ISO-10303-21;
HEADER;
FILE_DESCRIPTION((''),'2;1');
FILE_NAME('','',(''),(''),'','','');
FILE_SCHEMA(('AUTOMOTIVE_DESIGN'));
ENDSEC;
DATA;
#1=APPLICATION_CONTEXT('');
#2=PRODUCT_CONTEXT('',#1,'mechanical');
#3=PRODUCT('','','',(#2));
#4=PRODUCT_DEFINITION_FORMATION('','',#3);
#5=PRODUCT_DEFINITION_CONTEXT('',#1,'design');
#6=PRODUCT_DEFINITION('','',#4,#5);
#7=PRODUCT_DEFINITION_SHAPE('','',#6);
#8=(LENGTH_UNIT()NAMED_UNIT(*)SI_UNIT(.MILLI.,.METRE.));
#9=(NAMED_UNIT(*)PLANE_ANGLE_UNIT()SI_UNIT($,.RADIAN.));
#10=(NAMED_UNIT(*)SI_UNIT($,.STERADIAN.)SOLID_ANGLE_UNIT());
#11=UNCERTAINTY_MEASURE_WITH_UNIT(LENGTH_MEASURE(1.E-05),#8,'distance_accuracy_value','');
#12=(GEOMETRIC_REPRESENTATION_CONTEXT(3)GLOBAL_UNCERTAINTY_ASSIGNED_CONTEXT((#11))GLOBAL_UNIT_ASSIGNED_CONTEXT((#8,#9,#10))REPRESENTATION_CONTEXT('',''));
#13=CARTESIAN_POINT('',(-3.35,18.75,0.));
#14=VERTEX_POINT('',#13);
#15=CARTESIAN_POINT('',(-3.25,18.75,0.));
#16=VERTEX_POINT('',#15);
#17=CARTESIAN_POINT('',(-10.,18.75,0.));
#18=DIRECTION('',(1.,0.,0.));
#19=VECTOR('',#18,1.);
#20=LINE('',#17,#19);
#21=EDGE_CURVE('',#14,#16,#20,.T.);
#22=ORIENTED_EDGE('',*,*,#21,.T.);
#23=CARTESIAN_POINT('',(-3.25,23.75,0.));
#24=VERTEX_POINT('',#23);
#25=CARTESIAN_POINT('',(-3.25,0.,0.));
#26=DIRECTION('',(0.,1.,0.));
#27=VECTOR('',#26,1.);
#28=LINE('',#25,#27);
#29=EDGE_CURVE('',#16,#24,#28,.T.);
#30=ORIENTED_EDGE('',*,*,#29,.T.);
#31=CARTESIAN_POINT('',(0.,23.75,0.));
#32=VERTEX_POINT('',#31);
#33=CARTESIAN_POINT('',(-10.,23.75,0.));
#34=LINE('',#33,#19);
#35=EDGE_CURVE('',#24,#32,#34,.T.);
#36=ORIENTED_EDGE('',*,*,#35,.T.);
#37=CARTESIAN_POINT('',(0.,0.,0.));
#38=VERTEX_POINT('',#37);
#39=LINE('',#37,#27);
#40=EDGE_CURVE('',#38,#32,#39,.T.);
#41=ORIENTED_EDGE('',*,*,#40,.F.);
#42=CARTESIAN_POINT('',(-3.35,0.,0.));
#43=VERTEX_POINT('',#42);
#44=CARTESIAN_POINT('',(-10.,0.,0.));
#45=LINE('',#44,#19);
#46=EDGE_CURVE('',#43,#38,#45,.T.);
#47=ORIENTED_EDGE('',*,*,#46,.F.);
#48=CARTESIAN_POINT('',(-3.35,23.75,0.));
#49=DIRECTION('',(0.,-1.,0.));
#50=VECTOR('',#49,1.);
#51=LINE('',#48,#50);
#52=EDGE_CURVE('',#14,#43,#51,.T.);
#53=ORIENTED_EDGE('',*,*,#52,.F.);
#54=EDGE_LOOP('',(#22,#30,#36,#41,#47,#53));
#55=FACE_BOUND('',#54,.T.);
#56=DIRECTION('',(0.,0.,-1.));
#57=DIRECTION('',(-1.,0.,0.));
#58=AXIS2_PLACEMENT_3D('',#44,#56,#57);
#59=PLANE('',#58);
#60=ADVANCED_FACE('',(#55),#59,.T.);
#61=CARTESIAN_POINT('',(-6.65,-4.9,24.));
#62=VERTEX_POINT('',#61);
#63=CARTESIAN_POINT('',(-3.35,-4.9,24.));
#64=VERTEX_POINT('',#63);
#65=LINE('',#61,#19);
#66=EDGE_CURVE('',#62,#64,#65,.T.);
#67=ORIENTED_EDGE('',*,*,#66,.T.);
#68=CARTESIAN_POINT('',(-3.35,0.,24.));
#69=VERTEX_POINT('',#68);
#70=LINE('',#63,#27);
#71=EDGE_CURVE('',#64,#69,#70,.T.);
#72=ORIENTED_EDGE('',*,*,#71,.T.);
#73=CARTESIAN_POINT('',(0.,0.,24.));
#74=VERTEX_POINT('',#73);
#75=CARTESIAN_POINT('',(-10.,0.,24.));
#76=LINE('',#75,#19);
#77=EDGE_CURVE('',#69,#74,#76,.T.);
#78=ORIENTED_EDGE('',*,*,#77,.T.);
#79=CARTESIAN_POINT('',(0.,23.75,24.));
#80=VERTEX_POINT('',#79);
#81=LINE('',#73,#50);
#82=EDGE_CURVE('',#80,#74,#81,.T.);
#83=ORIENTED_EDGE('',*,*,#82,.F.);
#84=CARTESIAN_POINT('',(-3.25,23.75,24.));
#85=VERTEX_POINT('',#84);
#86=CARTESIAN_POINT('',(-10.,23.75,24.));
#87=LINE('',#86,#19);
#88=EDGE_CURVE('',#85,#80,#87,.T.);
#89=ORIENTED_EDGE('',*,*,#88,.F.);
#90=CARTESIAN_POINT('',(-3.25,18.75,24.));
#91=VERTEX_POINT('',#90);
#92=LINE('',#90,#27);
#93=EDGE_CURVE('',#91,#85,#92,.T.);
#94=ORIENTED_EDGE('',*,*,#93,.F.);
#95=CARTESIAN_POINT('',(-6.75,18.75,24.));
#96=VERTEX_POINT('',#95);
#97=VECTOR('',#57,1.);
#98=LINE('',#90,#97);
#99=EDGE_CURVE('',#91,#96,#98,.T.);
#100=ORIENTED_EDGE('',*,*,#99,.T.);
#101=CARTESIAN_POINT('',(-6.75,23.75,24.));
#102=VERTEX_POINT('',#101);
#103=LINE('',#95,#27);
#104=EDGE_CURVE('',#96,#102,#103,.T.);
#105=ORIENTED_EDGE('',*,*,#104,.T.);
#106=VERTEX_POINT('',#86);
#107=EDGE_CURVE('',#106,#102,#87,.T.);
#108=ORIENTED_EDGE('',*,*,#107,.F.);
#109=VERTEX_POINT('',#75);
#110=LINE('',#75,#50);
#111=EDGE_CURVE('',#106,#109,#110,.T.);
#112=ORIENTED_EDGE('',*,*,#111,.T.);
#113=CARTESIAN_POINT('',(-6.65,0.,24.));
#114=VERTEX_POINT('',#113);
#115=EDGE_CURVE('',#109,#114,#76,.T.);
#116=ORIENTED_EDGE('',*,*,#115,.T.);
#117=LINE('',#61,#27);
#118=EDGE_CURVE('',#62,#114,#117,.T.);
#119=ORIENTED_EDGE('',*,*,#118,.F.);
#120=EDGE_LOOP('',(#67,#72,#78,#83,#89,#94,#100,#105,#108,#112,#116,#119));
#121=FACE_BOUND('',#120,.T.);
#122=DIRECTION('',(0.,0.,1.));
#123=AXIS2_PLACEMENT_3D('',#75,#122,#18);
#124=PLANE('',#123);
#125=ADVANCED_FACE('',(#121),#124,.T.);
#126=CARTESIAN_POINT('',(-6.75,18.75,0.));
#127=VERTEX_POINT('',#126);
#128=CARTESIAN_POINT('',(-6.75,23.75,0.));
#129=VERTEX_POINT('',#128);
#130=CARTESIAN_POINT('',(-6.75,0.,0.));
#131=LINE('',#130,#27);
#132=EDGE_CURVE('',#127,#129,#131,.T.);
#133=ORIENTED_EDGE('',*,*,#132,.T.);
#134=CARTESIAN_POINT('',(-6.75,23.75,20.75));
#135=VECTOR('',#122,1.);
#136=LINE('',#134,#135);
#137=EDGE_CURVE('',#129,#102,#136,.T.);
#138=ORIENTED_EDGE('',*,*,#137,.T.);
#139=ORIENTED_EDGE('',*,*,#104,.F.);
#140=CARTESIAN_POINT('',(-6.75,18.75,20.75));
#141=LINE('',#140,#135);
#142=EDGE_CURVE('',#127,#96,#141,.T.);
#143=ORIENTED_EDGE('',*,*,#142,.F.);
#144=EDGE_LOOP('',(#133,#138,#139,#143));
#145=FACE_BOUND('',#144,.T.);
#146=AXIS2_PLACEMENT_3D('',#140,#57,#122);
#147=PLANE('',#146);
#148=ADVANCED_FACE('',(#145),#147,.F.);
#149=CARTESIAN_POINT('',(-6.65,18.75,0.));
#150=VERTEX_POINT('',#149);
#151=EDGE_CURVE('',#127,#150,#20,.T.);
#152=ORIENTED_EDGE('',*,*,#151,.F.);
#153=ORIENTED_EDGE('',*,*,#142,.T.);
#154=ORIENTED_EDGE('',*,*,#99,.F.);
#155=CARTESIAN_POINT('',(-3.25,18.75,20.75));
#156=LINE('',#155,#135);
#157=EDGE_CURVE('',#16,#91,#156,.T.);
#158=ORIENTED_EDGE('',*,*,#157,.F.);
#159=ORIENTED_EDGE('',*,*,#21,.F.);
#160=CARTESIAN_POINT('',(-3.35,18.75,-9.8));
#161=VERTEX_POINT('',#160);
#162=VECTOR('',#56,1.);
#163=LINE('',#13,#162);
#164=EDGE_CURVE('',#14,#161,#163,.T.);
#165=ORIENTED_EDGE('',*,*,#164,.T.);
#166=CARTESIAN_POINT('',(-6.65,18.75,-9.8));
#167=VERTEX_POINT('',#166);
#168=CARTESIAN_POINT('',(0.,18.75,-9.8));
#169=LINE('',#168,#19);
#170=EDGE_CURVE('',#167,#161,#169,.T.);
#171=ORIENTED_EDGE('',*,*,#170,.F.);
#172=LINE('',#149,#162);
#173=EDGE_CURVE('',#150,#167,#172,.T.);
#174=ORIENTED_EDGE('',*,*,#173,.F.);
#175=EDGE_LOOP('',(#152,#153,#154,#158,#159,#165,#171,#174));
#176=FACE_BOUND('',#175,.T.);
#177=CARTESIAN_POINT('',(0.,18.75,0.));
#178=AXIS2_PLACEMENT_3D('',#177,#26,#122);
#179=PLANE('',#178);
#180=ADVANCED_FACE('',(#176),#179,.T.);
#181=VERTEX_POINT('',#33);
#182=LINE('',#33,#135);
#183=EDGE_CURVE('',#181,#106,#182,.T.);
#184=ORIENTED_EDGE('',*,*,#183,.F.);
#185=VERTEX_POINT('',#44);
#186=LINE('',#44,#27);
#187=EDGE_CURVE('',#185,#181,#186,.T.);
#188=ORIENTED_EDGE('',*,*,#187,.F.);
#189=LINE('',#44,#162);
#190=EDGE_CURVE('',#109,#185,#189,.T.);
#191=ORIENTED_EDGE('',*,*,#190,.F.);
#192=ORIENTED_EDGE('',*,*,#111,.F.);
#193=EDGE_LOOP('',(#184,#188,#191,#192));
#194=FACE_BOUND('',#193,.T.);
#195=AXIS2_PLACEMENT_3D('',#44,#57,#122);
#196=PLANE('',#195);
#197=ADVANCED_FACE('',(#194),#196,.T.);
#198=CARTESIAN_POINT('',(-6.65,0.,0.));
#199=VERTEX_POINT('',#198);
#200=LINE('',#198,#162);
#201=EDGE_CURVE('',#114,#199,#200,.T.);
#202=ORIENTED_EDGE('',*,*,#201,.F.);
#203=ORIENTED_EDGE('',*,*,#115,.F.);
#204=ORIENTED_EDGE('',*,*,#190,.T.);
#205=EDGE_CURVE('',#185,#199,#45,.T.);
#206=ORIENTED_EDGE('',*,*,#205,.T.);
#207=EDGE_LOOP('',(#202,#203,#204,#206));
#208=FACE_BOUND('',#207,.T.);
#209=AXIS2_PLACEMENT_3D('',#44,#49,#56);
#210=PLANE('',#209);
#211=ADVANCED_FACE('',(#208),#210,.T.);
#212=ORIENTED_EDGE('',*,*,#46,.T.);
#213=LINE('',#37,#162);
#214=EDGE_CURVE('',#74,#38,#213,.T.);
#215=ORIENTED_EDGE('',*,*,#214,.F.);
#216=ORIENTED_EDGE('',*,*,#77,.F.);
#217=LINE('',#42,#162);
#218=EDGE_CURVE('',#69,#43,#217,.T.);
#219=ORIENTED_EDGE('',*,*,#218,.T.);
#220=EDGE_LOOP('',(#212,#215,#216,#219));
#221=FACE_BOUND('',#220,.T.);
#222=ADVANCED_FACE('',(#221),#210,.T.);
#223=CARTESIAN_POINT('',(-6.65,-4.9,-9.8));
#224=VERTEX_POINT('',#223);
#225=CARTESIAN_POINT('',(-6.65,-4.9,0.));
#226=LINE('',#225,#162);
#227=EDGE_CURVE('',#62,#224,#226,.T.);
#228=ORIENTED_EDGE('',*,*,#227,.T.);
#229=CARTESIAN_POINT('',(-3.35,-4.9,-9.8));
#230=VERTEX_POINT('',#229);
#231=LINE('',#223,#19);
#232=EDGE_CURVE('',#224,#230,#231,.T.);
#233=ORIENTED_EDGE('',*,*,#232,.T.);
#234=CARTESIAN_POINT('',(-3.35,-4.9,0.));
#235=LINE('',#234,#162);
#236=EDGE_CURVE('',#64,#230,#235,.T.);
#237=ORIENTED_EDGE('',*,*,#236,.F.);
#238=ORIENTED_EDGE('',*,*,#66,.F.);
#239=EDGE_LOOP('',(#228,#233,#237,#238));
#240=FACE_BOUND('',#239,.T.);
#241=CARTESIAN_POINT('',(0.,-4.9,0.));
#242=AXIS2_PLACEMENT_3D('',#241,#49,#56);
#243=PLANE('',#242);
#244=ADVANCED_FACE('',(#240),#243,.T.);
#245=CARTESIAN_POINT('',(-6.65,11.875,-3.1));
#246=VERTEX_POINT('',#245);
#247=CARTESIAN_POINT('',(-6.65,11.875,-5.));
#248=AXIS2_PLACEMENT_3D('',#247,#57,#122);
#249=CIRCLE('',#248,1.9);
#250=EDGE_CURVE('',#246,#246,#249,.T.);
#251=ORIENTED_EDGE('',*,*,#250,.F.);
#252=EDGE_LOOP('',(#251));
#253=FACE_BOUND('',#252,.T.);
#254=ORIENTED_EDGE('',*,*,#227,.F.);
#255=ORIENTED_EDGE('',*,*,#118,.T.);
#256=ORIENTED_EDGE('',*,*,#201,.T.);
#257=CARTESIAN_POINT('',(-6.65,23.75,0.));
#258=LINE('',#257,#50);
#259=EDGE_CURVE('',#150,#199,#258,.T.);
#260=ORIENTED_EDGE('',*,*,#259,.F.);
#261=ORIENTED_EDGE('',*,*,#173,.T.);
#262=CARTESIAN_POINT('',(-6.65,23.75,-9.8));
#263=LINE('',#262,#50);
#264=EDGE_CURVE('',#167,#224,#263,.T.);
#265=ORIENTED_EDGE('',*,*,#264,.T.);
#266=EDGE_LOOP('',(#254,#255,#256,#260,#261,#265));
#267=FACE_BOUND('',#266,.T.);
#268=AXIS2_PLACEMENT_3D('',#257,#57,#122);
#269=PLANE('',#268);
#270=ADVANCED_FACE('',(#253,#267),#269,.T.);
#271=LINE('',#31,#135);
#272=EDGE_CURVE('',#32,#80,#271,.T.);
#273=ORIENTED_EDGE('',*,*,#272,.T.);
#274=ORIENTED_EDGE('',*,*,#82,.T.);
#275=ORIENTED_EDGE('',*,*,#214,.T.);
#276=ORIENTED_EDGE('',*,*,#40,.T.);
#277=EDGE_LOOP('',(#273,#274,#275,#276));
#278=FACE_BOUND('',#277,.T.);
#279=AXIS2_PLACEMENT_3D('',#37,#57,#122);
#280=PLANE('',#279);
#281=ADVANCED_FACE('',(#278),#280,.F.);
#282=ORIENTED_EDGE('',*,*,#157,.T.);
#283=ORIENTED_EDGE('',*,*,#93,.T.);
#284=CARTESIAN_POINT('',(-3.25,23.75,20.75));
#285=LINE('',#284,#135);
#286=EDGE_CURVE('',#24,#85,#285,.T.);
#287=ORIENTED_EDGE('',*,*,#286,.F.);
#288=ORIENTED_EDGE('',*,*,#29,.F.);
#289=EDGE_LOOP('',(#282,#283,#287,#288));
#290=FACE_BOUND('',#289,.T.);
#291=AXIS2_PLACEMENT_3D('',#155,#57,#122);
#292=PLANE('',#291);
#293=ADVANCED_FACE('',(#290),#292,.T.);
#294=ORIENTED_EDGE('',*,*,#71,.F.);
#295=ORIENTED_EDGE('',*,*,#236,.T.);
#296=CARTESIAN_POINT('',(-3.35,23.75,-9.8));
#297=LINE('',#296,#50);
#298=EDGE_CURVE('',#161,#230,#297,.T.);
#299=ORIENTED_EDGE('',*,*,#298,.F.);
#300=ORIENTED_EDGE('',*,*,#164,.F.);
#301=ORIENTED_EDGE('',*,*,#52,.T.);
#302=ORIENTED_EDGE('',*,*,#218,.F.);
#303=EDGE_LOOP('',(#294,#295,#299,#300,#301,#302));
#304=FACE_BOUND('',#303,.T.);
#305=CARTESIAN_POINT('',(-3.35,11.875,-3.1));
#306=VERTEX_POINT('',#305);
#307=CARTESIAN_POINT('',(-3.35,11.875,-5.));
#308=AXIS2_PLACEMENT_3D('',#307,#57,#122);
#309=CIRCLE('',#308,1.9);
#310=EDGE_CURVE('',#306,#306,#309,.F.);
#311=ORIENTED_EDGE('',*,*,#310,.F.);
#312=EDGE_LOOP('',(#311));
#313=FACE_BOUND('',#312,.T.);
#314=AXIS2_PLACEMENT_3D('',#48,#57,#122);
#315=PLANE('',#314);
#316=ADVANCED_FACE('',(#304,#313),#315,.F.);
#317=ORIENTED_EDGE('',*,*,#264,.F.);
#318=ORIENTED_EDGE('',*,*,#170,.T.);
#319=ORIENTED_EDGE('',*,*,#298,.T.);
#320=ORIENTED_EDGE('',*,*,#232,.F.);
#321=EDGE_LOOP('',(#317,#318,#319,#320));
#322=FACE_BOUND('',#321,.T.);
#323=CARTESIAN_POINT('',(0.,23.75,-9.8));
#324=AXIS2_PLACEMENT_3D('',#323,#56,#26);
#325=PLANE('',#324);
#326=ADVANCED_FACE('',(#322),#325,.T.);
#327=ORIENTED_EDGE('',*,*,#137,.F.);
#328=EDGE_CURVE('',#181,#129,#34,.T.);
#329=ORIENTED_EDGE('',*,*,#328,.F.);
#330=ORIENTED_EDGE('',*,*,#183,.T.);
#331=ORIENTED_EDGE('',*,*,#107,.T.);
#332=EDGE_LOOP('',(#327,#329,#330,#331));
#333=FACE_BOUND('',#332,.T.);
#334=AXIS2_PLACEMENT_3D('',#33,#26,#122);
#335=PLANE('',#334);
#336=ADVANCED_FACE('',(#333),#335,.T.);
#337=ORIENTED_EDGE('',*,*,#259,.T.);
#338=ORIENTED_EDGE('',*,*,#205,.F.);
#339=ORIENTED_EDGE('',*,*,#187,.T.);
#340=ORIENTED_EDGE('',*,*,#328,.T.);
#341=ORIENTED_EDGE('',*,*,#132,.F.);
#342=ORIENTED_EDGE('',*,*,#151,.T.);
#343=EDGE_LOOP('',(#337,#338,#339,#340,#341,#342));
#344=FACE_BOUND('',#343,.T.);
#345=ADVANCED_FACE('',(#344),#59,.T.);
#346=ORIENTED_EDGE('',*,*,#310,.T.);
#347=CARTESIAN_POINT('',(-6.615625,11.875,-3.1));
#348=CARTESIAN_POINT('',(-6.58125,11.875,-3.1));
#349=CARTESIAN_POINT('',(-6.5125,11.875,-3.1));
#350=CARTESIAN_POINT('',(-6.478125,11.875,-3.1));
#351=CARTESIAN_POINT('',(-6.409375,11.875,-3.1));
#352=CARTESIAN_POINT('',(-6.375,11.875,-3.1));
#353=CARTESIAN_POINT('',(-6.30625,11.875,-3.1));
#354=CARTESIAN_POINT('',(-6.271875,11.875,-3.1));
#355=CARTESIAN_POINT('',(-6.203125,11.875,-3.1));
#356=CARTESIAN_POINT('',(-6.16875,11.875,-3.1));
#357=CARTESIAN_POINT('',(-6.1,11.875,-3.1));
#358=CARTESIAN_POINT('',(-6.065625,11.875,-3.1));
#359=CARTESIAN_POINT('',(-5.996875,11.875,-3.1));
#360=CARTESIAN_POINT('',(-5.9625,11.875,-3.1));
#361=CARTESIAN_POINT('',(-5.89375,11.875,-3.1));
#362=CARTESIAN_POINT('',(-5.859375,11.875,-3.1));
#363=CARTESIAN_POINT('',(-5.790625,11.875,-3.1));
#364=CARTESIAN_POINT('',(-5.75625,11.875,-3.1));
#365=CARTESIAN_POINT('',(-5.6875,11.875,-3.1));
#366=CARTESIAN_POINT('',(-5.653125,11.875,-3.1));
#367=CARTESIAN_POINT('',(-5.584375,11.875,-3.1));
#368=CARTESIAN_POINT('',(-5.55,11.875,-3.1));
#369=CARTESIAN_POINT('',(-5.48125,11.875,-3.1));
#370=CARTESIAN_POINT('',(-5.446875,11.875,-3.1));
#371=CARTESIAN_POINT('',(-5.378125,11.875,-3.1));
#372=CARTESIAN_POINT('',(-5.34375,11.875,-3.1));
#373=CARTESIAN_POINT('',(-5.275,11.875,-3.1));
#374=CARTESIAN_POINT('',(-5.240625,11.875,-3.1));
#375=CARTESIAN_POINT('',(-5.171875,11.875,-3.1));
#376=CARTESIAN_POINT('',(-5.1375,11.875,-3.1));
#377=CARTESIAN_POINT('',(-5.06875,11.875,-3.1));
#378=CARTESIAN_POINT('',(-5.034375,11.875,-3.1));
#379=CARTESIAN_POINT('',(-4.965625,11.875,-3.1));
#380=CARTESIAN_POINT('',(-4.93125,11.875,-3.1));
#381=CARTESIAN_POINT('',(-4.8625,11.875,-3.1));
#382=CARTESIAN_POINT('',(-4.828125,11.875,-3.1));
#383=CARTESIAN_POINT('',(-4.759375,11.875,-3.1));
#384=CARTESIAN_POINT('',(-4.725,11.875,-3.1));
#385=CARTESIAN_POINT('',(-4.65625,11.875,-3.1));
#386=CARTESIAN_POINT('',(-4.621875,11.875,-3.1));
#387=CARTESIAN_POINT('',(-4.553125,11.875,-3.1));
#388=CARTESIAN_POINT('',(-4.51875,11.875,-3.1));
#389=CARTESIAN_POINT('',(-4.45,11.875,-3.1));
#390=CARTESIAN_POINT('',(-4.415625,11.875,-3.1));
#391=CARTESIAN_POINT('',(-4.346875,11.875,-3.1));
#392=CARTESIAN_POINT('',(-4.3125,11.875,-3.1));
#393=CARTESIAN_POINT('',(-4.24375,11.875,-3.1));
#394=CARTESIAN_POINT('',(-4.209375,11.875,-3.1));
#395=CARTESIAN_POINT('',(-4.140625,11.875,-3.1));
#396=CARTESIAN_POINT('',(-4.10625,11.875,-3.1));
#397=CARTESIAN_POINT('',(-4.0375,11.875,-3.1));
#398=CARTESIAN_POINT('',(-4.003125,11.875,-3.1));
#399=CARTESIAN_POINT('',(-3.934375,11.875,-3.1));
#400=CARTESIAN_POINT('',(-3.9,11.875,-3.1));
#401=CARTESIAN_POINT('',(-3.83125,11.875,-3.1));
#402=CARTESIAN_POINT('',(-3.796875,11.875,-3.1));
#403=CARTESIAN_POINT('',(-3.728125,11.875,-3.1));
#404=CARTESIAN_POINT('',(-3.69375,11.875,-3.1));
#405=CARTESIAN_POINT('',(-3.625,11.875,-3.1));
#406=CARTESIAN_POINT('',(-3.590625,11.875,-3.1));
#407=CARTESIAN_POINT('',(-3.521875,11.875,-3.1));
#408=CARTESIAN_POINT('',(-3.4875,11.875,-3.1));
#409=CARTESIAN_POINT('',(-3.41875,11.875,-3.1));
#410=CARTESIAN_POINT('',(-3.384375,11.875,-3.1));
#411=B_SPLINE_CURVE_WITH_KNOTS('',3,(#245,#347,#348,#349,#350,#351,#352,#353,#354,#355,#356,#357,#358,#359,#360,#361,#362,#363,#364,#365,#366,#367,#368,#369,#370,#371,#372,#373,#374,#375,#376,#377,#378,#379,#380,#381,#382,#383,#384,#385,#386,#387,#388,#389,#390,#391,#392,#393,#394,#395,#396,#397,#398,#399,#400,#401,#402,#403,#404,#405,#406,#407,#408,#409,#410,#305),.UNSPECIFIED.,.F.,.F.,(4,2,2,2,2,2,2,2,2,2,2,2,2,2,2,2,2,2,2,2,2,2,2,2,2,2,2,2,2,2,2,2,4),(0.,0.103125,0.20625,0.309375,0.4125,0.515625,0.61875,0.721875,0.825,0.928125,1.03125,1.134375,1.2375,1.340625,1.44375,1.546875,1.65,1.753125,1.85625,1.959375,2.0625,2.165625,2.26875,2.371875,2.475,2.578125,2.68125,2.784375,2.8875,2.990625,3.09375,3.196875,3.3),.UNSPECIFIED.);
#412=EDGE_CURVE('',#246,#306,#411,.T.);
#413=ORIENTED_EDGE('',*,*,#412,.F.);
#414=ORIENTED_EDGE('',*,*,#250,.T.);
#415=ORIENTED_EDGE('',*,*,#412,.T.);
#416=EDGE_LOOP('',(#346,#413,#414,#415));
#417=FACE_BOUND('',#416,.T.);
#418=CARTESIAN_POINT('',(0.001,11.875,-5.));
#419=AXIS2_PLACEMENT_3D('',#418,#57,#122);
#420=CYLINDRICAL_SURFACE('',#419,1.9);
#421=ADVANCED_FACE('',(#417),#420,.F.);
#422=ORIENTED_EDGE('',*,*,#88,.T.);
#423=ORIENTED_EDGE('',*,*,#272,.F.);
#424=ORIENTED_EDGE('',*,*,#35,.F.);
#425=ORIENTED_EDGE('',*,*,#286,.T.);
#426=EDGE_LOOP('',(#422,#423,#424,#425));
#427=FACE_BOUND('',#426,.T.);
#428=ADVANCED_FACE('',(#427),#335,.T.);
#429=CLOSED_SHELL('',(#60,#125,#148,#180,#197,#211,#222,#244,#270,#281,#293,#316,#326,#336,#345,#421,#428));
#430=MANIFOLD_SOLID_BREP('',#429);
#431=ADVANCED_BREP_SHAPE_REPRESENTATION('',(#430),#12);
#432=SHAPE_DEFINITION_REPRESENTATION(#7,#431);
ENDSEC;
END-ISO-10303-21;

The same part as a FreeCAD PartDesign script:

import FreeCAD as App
import Part
import Sketcher

V = App.Vector
Q = App.Units.Quantity


def add_polygon(sketch, points):
    """Adds a closed chain of lines whose ends are joined by coincident constraints."""
    first, n = sketch.GeometryCount, len(points)
    for a, b in zip(points, points[1:] + points[:1]):
        sketch.addGeometry(Part.LineSegment(App.Vector(*a, 0), App.Vector(*b, 0)), False)
    for i in range(n):
        sketch.addConstraint(Sketcher.Constraint("Coincident", first + i, 2, first + (i + 1) % n, 1))

doc = App.newDocument("Part")
body = doc.addObject("PartDesign::Body", "Body")

# Sketch on YZ plane
sketch1 = doc.addObject("Sketcher::SketchObject", "Sketch")
body.addObject(sketch1)
sketch1.AttachmentSupport = (doc.YZ_Plane, [""])
sketch1.MapMode = "FlatFace"
add_polygon(sketch1, [(0, 24), (0, 0), (24, 0), (24, 24)])  # lines 0-3
sketch1.addConstraint(Sketcher.Constraint("Vertical", 0))
sketch1.addConstraint(Sketcher.Constraint("Horizontal", 1))
sketch1.addConstraint(Sketcher.Constraint("Vertical", 2))
sketch1.addConstraint(Sketcher.Constraint("Horizontal", 3))
sketch1.addConstraint(Sketcher.Constraint("Coincident", 0, 2, -1, 1))
sketch1.addConstraint(Sketcher.Constraint("DistanceY", 0, 2, 0, 1, Q("24 mm")))
sketch1.addConstraint(Sketcher.Constraint("DistanceX", 1, 1, 1, 2, Q("23.75 mm")))
pad1 = doc.addObject("PartDesign::Pad", "Pad")
body.addObject(pad1)
pad1.Profile = sketch1
pad1.Length = 10
pad1.Reversed = True

# Sketch on XZ plane
sketch2 = doc.addObject("Sketcher::SketchObject", "Sketch001")
body.addObject(sketch2)
sketch2.AttachmentSupport = (doc.XZ_Plane, [""])
sketch2.MapMode = "FlatFace"
add_polygon(sketch2, [(-6.7, 0), (-6.7, -9.8), (-3.4, -9.8), (-3.4, 0)])  # lines 0-3
sketch2.addConstraint(Sketcher.Constraint("Vertical", 0))
sketch2.addConstraint(Sketcher.Constraint("Horizontal", 1))
sketch2.addConstraint(Sketcher.Constraint("Vertical", 2))
sketch2.addConstraint(Sketcher.Constraint("Horizontal", 3))
sketch2.addConstraint(Sketcher.Constraint("PointOnObject", 2, 2, -1))
sketch2.addConstraint(Sketcher.Constraint("DistanceX", 1, 1, 1, 2, Q("3.3 mm")))
sketch2.addConstraint(Sketcher.Constraint("DistanceY", 0, 2, 0, 1, Q("9.8 mm")))
sketch2.addConstraint(Sketcher.Constraint("DistanceX", 0, 2, -1, 1, Q("6.65 mm")))
pad2 = doc.addObject("PartDesign::Pad", "Pad001")
body.addObject(pad2)
pad2.Profile = sketch2
pad2.Length = 23.75
pad2.Reversed = True

# Sketch on XZ plane
sketch3 = doc.addObject("Sketcher::SketchObject", "Sketch002")
body.addObject(sketch3)
sketch3.AttachmentSupport = (doc.XZ_Plane, [""])
sketch3.MapMode = "FlatFace"
add_polygon(sketch3, [(-3.4, 24), (-6.7, 24), (-6.7, -9.8), (-3.4, -9.8)])  # lines 0-3
sketch3.addConstraint(Sketcher.Constraint("Horizontal", 0))
sketch3.addConstraint(Sketcher.Constraint("Vertical", 1))
sketch3.addConstraint(Sketcher.Constraint("Horizontal", 2))
sketch3.addConstraint(Sketcher.Constraint("Vertical", 3))
sketch3.addConstraint(Sketcher.Constraint("DistanceX", 0, 2, 0, 1, Q("3.3 mm")))
sketch3.addConstraint(Sketcher.Constraint("DistanceY", 1, 2, 1, 1, Q("33.8 mm")))
sketch3.addConstraint(Sketcher.Constraint("DistanceY", -1, 1, 0, 2, Q("24 mm")))
sketch3.addConstraint(Sketcher.Constraint("DistanceX", 0, 2, -1, 1, Q("6.65 mm")))
pad3 = doc.addObject("PartDesign::Pad", "Pad002")
body.addObject(pad3)
pad3.Profile = sketch3
pad3.Length = 4.9

# Sketch on YZ plane
sketch4 = doc.addObject("Sketcher::SketchObject", "Sketch003")
body.addObject(sketch4)
sketch4.AttachmentSupport = (doc.YZ_Plane, [""])
sketch4.MapMode = "FlatFace"
sketch4.AttachmentOffset = App.Placement(V(0, 0, -6.65), App.Rotation())
sketch4.addGeometry(Part.Circle(V(11.9, -5, 0), V(0, 0, 1), 1.9), False)
sketch4.addConstraint(Sketcher.Constraint("Diameter", 0, Q("3.8 mm")))
sketch4.addConstraint(Sketcher.Constraint("DistanceY", 0, 3, -1, 1, Q("5 mm")))
sketch4.addConstraint(Sketcher.Constraint("DistanceX", -1, 1, 0, 3, Q("11.875 mm")))
pocket1 = doc.addObject("PartDesign::Pocket", "Pocket")
body.addObject(pocket1)
pocket1.Profile = sketch4
pocket1.Type = "UpToFirst"
pocket1.Reversed = True

# Sketch on XZ plane
sketch5 = doc.addObject("Sketcher::SketchObject", "Sketch004")
body.addObject(sketch5)
sketch5.AttachmentSupport = (doc.XZ_Plane, [""])
sketch5.MapMode = "FlatFace"
sketch5.AttachmentOffset = App.Placement(V(0, 0, -23.75), App.Rotation())
add_polygon(sketch5, [(-6.8, 24), (-3.2, 24), (-3.2, -9.8), (-6.8, -9.8)])  # lines 0-3
sketch5.addConstraint(Sketcher.Constraint("Horizontal", 0))
sketch5.addConstraint(Sketcher.Constraint("Vertical", 1))
sketch5.addConstraint(Sketcher.Constraint("Horizontal", 2))
sketch5.addConstraint(Sketcher.Constraint("Vertical", 3))
sketch5.addConstraint(Sketcher.Constraint("DistanceX", 0, 1, 0, 2, Q("3.5 mm")))
sketch5.addConstraint(Sketcher.Constraint("DistanceY", 1, 2, 1, 1, Q("33.8 mm")))
sketch5.addConstraint(Sketcher.Constraint("DistanceY", -1, 1, 0, 2, Q("24 mm")))
sketch5.addConstraint(Sketcher.Constraint("DistanceX", 0, 2, -1, 1, Q("3.25 mm")))
pocket2 = doc.addObject("PartDesign::Pocket", "Pocket001")
body.addObject(pocket2)
pocket2.Profile = sketch5
pocket2.Length = 5
pocket2.Reversed = True

doc.recompute()
